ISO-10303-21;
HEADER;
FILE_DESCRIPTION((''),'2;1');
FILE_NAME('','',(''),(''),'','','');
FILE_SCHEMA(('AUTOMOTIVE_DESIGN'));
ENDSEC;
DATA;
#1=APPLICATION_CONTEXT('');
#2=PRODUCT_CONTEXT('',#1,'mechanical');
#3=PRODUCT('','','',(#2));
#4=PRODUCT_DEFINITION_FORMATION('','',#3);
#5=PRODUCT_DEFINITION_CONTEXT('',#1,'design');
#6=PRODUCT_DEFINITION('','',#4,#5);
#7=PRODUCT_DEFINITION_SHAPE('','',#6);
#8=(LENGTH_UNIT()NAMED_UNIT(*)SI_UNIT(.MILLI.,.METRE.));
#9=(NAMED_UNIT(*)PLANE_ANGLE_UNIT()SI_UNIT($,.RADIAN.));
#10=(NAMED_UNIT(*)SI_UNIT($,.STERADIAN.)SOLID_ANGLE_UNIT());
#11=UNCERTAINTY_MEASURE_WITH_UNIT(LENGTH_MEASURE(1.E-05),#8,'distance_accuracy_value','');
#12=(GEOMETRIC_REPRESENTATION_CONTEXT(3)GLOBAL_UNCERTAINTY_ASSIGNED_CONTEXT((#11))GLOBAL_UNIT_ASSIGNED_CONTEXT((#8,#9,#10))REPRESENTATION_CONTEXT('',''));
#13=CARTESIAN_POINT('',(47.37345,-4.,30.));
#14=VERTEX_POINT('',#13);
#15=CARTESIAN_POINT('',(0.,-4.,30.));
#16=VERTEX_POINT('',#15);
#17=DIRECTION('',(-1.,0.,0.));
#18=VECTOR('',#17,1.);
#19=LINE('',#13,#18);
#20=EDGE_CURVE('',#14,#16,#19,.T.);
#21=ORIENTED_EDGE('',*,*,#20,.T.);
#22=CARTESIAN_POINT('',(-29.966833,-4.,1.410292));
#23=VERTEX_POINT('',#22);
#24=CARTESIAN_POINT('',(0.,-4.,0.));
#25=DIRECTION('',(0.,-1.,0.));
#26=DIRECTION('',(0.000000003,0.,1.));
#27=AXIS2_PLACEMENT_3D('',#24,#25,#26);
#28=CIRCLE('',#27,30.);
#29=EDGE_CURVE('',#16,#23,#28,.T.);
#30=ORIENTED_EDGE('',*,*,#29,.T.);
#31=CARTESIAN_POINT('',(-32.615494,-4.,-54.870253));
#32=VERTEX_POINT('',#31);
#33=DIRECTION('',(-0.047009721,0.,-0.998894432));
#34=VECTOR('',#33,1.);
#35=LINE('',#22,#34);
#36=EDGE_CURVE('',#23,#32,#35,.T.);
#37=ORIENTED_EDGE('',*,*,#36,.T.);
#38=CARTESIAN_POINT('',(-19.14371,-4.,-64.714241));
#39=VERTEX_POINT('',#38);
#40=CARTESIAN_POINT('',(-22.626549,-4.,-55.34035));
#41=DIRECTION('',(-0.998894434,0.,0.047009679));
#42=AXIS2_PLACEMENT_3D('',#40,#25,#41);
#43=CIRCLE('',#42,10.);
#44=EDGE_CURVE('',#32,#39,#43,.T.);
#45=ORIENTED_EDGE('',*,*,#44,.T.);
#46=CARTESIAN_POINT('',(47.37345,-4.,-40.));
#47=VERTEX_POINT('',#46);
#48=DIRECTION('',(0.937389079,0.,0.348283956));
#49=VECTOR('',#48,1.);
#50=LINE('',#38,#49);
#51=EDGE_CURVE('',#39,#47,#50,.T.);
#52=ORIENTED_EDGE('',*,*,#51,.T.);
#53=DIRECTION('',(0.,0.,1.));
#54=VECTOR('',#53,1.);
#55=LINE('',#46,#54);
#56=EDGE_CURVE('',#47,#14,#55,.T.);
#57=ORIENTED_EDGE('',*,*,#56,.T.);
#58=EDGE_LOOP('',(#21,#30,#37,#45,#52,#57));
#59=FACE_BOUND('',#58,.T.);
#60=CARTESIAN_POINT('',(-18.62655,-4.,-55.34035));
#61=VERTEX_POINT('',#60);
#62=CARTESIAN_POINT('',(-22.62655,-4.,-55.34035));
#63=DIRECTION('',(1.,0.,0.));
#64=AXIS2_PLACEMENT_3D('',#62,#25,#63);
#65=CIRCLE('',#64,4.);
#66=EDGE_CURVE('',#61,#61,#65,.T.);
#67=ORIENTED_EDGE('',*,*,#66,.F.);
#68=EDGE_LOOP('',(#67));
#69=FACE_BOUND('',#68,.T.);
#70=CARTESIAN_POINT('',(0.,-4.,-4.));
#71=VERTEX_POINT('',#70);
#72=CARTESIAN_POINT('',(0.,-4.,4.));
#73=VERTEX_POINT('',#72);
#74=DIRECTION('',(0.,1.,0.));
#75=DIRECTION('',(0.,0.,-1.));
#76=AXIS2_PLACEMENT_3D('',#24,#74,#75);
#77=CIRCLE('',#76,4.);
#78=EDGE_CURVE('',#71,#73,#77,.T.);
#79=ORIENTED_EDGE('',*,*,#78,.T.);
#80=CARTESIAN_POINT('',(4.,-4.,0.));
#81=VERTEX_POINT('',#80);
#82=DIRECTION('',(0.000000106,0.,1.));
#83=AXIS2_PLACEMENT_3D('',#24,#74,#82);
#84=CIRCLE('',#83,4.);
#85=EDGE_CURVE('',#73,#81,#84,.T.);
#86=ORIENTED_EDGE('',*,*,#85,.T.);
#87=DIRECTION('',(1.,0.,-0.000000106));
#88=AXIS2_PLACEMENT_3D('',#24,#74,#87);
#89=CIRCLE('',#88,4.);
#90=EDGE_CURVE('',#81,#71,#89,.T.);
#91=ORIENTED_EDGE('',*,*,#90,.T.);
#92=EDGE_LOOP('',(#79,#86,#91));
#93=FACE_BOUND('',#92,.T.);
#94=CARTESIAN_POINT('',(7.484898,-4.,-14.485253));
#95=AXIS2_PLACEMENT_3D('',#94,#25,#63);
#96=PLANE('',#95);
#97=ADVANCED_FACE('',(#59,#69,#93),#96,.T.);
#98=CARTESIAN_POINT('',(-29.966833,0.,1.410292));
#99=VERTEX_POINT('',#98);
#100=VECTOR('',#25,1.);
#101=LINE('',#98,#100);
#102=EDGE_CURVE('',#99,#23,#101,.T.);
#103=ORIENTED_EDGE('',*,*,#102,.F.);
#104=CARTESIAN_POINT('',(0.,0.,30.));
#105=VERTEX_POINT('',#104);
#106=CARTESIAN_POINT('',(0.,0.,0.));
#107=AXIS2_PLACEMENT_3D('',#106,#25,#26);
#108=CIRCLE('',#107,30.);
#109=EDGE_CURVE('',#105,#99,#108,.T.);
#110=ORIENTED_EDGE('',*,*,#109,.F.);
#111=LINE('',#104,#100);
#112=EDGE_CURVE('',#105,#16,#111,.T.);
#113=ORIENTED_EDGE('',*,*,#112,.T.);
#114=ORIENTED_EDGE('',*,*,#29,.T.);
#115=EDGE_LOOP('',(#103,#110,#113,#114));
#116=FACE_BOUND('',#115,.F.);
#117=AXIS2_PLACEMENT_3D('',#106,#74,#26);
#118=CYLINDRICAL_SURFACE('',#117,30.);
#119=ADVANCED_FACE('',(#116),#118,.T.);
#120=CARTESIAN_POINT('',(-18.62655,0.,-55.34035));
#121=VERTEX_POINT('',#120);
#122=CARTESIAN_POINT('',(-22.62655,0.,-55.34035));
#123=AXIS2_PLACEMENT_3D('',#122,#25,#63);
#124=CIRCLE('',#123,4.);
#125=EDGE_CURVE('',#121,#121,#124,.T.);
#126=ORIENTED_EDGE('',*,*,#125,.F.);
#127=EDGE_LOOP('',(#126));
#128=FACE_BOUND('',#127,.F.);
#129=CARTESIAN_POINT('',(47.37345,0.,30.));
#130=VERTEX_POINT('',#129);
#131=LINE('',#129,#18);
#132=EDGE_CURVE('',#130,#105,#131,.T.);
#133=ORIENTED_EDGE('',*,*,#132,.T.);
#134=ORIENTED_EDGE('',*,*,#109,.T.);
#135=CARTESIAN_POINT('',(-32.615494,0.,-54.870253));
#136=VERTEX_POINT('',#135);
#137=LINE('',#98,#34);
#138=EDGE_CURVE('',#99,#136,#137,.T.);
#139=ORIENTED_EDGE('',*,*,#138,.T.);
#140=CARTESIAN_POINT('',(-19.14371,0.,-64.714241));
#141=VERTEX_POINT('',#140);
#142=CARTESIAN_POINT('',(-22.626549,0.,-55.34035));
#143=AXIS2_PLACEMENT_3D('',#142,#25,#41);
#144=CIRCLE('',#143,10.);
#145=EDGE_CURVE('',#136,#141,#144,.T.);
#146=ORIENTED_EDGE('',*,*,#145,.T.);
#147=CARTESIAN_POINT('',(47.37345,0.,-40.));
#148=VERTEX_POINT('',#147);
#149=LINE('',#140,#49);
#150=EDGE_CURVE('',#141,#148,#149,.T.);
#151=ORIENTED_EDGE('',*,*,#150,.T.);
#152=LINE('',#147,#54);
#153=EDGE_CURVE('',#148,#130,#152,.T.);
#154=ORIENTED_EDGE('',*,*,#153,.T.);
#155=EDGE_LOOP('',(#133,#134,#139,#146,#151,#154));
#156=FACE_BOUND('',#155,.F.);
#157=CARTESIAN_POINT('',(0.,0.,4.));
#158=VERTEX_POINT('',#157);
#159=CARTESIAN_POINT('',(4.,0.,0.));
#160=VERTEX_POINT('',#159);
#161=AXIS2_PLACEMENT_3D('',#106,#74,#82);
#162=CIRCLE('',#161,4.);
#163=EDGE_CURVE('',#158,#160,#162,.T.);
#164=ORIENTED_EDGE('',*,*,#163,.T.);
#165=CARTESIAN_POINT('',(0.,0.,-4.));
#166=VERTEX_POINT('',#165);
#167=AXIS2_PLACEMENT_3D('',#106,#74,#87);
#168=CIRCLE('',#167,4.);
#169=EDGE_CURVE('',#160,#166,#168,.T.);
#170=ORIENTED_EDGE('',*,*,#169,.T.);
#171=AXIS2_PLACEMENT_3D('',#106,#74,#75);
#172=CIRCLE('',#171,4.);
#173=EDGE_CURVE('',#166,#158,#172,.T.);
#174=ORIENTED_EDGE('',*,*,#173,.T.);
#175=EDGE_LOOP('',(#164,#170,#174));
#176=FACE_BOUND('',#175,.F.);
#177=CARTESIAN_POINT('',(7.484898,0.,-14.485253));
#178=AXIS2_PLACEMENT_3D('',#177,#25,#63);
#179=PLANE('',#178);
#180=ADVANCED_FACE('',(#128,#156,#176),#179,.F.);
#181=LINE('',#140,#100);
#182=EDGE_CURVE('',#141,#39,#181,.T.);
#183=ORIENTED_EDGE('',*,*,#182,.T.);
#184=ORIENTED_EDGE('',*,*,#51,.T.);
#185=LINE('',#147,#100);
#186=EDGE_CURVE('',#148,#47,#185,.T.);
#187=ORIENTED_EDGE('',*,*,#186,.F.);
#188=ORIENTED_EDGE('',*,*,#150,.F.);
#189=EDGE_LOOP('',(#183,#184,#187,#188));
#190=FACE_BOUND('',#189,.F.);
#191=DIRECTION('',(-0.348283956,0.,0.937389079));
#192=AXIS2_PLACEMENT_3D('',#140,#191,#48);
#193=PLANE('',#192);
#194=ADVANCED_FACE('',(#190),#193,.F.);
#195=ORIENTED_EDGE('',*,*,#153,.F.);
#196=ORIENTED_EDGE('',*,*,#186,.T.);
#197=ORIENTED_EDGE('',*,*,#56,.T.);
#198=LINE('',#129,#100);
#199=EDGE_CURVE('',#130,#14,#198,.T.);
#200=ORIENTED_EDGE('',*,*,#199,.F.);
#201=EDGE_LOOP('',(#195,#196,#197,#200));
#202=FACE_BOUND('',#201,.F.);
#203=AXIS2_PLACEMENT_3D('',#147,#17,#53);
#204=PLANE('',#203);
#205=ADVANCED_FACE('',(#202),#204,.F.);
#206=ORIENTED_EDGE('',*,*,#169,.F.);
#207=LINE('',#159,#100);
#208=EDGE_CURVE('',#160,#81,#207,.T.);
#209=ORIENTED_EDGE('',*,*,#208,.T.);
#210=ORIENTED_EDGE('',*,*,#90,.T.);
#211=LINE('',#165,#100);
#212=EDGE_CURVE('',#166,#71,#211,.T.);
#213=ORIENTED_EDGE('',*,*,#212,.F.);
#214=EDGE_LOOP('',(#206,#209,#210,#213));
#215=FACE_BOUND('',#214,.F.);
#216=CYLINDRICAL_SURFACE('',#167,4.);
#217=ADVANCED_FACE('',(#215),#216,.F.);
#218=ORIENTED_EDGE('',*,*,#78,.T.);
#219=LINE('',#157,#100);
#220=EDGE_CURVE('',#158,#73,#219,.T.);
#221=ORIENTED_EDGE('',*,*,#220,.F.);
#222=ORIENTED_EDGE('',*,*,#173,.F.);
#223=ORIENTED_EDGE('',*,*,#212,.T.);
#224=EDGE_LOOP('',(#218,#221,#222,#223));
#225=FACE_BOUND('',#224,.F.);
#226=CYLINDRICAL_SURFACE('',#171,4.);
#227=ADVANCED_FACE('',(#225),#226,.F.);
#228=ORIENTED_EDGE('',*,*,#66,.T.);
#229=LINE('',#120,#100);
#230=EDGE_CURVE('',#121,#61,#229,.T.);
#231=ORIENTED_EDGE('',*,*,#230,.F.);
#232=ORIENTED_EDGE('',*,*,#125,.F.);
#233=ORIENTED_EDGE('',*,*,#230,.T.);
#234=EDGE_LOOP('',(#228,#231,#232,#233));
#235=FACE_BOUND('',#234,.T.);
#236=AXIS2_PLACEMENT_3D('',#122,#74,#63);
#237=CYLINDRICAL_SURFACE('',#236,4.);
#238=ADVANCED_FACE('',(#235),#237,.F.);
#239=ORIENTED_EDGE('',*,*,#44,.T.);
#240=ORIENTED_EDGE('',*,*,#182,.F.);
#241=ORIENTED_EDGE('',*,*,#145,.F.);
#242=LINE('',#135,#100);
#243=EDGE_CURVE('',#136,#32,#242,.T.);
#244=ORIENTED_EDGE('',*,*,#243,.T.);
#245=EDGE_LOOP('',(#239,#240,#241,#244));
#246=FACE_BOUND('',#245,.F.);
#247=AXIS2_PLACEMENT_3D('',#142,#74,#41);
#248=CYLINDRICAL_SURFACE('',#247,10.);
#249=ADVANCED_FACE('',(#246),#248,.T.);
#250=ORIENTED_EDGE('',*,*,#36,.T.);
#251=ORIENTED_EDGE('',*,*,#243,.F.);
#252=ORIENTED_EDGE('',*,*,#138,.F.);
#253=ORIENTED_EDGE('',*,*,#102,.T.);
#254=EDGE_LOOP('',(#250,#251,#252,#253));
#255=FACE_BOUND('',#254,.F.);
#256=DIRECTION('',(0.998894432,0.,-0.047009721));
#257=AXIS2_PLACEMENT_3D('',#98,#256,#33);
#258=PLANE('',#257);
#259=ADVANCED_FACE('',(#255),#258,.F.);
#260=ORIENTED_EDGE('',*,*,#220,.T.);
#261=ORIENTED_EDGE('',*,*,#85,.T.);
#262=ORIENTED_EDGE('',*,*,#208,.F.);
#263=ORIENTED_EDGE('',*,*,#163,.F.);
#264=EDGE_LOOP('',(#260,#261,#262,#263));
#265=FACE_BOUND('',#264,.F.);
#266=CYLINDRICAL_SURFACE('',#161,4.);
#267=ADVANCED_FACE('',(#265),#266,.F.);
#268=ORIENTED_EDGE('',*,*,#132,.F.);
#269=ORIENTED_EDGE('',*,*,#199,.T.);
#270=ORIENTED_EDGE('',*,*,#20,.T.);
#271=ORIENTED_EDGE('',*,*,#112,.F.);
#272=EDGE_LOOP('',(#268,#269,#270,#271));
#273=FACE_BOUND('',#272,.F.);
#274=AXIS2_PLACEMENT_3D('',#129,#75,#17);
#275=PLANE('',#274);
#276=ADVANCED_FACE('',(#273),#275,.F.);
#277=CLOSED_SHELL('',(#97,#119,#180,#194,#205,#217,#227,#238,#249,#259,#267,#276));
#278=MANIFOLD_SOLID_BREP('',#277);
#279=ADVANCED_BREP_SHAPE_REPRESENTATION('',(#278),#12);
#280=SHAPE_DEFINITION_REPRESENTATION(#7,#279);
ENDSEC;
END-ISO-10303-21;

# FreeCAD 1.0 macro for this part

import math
import FreeCAD as App
import Part
import Sketcher
from FreeCAD import Vector

doc = App.newDocument("Part")
body = doc.addObject("PartDesign::Body", "Body")

sketch1 = doc.addObject("Sketcher::SketchObject", "Sketch")
body.addObject(sketch1)
sketch1.AttachmentSupport = (doc.XZ_Plane, [""])
sketch1.MapMode = "FlatFace"
sketch1.addGeometry([
    Part.LineSegment(Vector(-30, 1.4, 0), Vector(-32.6, -54.9, 0)),
    Part.ArcOfCircle(Part.Circle(Vector(-22.6, -55.3, 0), Vector(0, 0, 1), 10), math.radians(177), math.radians(290)),
    Part.LineSegment(Vector(-19.1, -64.7, 0), Vector(47.4, -40, 0)),
    Part.LineSegment(Vector(47.4, -40, 0), Vector(47.4, 30, 0)),
    Part.LineSegment(Vector(47.4, 30, 0), Vector(0, 30, 0)),
    Part.ArcOfCircle(Part.Circle(Vector(0, 0, 0), Vector(0, 0, 1), 30), math.radians(90), math.radians(177)),
    Part.Circle(Vector(-22.6, -55.3, 0), Vector(0, 0, 1), 4),
    Part.ArcOfCircle(Part.Circle(Vector(0, 0, 0), Vector(0, 0, 1), 4), math.radians(90), math.radians(270)),
    Part.ArcOfCircle(Part.Circle(Vector(0, 0, 0), Vector(0, 0, 1), 4), math.radians(0), math.radians(90)),
    Part.ArcOfCircle(Part.Circle(Vector(0, 0, 0), Vector(0, 0, 1), 4), math.radians(-90), math.radians(0)),
], False)
sketch1.addConstraint([
    Sketcher.Constraint("Tangent", 0, 2, 1, 1),
    Sketcher.Constraint("Tangent", 1, 2, 2, 1),
    Sketcher.Constraint("Coincident", 2, 2, 3, 1),
    Sketcher.Constraint("Coincident", 3, 2, 4, 1),
    Sketcher.Constraint("Tangent", 4, 2, 5, 1),
    Sketcher.Constraint("Tangent", 5, 2, 0, 1),
    Sketcher.Constraint("Tangent", 7, 1, 8, 2),
    Sketcher.Constraint("Tangent", 8, 1, 9, 2),
    Sketcher.Constraint("Tangent", 9, 1, 7, 2),
    Sketcher.Constraint("Vertical", 3),
    Sketcher.Constraint("Horizontal", 4),
    Sketcher.Constraint("Coincident", 5, 3, -1, 1),
    Sketcher.Constraint("Coincident", 7, 3, -1, 1),
    Sketcher.Constraint("Coincident", 6, 3, 1, 3),
    Sketcher.Constraint("Equal", 6, 7),
    Sketcher.Constraint("PointOnObject", 7, 1, -2),
    Sketcher.Constraint("PointOnObject", 8, 1, -1),
    Sketcher.Constraint("PointOnObject", 9, 1, -2),
    Sketcher.Constraint("Diameter", 6, 8.0),
    Sketcher.Constraint("Radius", 1, 10.0),
    Sketcher.Constraint("Radius", 5, 30.0),
    Sketcher.Constraint("DistanceY", 3, 1, 3, 2, 70.0),
    Sketcher.Constraint("DistanceX", 4, 2, 4, 1, 47.37345),
    Sketcher.Constraint("DistanceX", 1, 3, -1, 1, 22.626549),
    Sketcher.Constraint("DistanceY", 1, 3, -1, 1, 55.34035),
])
pad1 = doc.addObject("PartDesign::Pad", "Pad")
body.addObject(pad1)
pad1.Profile = sketch1
pad1.Length = 4

doc.recompute()
